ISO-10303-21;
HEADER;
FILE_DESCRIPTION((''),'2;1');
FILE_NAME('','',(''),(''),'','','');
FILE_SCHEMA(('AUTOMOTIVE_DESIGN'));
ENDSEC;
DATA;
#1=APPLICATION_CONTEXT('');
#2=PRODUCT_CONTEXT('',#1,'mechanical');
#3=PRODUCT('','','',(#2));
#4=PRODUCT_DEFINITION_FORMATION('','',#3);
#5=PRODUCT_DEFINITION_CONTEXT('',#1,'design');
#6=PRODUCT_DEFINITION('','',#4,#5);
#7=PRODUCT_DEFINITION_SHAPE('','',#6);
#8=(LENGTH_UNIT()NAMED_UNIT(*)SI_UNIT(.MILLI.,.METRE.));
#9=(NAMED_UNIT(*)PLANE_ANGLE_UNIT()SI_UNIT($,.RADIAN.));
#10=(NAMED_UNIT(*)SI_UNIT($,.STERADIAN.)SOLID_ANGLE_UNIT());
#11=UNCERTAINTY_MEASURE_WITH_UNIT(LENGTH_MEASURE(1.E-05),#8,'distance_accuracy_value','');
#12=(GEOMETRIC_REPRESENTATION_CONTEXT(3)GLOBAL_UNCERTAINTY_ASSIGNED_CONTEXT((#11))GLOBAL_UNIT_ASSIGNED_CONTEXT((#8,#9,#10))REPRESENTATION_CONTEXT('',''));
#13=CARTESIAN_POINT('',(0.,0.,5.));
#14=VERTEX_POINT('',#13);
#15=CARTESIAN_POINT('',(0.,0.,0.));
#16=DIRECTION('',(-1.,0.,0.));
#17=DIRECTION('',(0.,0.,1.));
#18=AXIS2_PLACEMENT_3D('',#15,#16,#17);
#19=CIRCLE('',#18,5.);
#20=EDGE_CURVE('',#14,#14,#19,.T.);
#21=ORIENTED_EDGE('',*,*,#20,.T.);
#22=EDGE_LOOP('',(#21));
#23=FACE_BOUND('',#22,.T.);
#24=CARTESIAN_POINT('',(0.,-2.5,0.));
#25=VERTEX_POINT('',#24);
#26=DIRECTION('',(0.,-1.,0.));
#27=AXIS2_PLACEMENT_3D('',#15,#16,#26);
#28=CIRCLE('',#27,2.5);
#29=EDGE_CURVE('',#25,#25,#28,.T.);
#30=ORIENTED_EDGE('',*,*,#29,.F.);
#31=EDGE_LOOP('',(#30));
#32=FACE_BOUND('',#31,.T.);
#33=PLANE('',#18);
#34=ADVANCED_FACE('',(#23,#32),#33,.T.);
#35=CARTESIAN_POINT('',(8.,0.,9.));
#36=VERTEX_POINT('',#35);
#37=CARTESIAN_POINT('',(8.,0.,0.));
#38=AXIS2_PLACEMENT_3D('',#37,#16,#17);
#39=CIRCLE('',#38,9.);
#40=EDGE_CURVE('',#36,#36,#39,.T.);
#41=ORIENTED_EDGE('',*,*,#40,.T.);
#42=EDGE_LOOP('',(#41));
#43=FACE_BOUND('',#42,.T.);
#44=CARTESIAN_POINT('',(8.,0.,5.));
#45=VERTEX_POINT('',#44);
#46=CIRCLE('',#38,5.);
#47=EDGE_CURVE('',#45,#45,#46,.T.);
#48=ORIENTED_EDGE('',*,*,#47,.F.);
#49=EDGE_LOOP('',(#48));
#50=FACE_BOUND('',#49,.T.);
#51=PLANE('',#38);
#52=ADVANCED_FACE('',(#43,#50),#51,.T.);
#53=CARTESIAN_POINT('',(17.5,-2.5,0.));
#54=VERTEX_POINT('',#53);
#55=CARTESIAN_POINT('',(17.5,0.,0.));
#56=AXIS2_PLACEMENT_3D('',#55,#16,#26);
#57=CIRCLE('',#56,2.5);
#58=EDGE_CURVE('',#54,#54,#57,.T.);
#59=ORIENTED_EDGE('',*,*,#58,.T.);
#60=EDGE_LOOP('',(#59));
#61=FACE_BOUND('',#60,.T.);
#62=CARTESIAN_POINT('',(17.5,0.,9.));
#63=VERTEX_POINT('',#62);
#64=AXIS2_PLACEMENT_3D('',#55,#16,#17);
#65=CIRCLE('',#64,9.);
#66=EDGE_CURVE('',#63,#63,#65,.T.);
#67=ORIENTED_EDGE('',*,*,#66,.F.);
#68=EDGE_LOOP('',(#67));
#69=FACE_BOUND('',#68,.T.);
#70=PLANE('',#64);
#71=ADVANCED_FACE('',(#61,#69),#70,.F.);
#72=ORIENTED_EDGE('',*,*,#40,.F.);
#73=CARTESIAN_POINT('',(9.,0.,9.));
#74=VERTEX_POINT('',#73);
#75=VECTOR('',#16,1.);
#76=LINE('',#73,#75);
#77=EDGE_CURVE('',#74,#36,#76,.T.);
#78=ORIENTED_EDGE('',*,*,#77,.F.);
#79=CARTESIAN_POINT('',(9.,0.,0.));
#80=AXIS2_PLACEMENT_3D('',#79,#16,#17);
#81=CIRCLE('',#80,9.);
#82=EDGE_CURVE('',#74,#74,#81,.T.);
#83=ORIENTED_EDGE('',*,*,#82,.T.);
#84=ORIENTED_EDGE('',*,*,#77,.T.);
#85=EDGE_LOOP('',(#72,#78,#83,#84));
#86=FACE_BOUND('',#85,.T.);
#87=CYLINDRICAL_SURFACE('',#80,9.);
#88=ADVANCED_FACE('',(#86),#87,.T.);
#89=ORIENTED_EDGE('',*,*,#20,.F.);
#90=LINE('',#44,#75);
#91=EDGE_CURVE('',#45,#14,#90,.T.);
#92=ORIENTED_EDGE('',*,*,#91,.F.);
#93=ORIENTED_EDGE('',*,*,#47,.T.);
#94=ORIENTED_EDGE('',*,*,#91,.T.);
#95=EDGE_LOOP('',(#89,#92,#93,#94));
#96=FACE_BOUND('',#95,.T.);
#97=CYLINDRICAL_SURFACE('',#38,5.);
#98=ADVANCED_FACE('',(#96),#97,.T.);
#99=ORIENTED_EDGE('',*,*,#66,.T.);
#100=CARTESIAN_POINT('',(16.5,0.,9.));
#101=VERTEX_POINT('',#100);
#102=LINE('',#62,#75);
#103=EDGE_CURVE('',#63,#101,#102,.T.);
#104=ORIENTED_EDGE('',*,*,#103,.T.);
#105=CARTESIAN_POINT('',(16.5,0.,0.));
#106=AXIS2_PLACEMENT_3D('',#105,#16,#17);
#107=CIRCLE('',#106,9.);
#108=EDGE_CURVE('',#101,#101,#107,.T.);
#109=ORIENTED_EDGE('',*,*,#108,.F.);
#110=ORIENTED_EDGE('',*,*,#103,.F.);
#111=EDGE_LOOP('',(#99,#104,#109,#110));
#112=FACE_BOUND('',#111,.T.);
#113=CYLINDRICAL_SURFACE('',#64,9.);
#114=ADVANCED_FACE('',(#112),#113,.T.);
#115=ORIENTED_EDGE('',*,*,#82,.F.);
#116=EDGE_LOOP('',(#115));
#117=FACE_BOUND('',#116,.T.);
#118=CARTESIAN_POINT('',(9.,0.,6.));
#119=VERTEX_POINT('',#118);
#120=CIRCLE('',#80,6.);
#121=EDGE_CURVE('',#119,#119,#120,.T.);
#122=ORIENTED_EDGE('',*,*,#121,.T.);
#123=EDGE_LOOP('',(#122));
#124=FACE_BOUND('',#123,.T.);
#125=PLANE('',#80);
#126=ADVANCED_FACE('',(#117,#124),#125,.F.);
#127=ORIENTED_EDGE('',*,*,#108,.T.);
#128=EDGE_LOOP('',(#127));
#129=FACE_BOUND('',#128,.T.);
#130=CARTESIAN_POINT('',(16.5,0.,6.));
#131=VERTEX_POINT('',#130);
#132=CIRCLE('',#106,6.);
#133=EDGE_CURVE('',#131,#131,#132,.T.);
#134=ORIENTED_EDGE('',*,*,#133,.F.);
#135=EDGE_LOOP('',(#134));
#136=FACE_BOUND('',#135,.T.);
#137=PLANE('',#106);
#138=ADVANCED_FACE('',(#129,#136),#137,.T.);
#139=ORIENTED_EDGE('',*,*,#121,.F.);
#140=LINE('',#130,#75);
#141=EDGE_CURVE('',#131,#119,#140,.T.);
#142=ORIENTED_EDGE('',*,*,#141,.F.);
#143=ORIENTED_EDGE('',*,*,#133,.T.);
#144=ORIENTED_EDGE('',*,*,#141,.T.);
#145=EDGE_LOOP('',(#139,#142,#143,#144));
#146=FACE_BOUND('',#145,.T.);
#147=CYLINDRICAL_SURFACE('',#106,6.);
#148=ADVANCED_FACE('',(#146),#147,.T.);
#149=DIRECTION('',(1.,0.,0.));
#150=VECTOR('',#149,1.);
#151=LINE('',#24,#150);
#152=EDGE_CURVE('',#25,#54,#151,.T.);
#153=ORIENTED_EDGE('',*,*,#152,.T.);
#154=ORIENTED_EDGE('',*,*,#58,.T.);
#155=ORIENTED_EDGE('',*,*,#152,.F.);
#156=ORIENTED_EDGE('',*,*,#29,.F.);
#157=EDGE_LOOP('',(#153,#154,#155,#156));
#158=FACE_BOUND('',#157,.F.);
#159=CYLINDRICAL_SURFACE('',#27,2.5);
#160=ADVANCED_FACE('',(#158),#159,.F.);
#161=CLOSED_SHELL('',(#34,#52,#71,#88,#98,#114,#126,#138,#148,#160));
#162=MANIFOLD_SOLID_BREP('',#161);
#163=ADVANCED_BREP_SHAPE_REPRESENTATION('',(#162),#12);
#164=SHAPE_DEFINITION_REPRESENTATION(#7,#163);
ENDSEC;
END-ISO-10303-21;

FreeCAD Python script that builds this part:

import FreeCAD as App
import Part
import Sketcher

doc = App.newDocument("Part")
body = doc.addObject("PartDesign::Body", "Body")

sketch1 = body.newObject("Sketcher::SketchObject", "Sketch")
sketch1.AttachmentSupport = (doc.getObject("XZ_Plane"), [""])
sketch1.MapMode = "FlatFace"
sketch1.addGeometry(Part.LineSegment(App.Vector(0, 5, 0), App.Vector(0, 0, 0)), False)
sketch1.addGeometry(Part.LineSegment(App.Vector(0, 0, 0), App.Vector(17.5, 0, 0)), False)
sketch1.addGeometry(Part.LineSegment(App.Vector(17.5, 0, 0), App.Vector(17.5, 9, 0)), False)
sketch1.addGeometry(Part.LineSegment(App.Vector(17.5, 9, 0), App.Vector(16.5, 9, 0)), False)
sketch1.addGeometry(Part.LineSegment(App.Vector(16.5, 9, 0), App.Vector(16.5, 6, 0)), False)
sketch1.addGeometry(Part.LineSegment(App.Vector(16.5, 6, 0), App.Vector(9, 6, 0)), False)
sketch1.addGeometry(Part.LineSegment(App.Vector(9, 6, 0), App.Vector(9, 9, 0)), False)
sketch1.addGeometry(Part.LineSegment(App.Vector(9, 9, 0), App.Vector(8, 9, 0)), False)
sketch1.addGeometry(Part.LineSegment(App.Vector(8, 9, 0), App.Vector(8, 5, 0)), False)
sketch1.addGeometry(Part.LineSegment(App.Vector(8, 5, 0), App.Vector(0, 5, 0)), False)
sketch1.addConstraint(Sketcher.Constraint("Coincident", 0, 2, 1, 1))
sketch1.addConstraint(Sketcher.Constraint("Coincident", 1, 2, 2, 1))
sketch1.addConstraint(Sketcher.Constraint("Coincident", 2, 2, 3, 1))
sketch1.addConstraint(Sketcher.Constraint("Coincident", 3, 2, 4, 1))
sketch1.addConstraint(Sketcher.Constraint("Coincident", 4, 2, 5, 1))
sketch1.addConstraint(Sketcher.Constraint("Coincident", 5, 2, 6, 1))
sketch1.addConstraint(Sketcher.Constraint("Coincident", 6, 2, 7, 1))
sketch1.addConstraint(Sketcher.Constraint("Coincident", 7, 2, 8, 1))
sketch1.addConstraint(Sketcher.Constraint("Coincident", 8, 2, 9, 1))
sketch1.addConstraint(Sketcher.Constraint("Coincident", 9, 2, 0, 1))
sketch1.addConstraint(Sketcher.Constraint("Vertical", 0))
sketch1.addConstraint(Sketcher.Constraint("Horizontal", 1))
sketch1.addConstraint(Sketcher.Constraint("Vertical", 2))
sketch1.addConstraint(Sketcher.Constraint("Horizontal", 3))
sketch1.addConstraint(Sketcher.Constraint("Vertical", 4))
sketch1.addConstraint(Sketcher.Constraint("Horizontal", 5))
sketch1.addConstraint(Sketcher.Constraint("Vertical", 6))
sketch1.addConstraint(Sketcher.Constraint("Horizontal", 7))
sketch1.addConstraint(Sketcher.Constraint("Vertical", 8))
sketch1.addConstraint(Sketcher.Constraint("Horizontal", 9))
sketch1.addConstraint(Sketcher.Constraint("Coincident", 0, 2, -1, 1))
sketch1.addConstraint(Sketcher.Constraint("Horizontal", 3, 2, 6, 2))
sketch1.addConstraint(Sketcher.Constraint("Equal", 3, 7))
sketch1.addConstraint(Sketcher.Constraint("DistanceX", 3, 2, 3, 1, 1.0))
sketch1.addConstraint(Sketcher.Constraint("DistanceX", 9, 2, 9, 1, 8.0))
sketch1.addConstraint(Sketcher.Constraint("DistanceY", 0, 2, 0, 1, 5.0))
sketch1.addConstraint(Sketcher.Constraint("DistanceY", 2, 1, 2, 2, 9.0))
sketch1.addConstraint(Sketcher.Constraint("DistanceY", 4, 2, 4, 1, 3.0))
sketch1.addConstraint(Sketcher.Constraint("DistanceX", 1, 1, 1, 2, 17.5))
revolution = body.newObject("PartDesign::Revolution", "Revolution")
revolution.Profile = sketch1
revolution.ReferenceAxis = (sketch1, ["H_Axis"])
revolution.Angle = 360

sketch2 = body.newObject("Sketcher::SketchObject", "Sketch001")
sketch2.AttachmentSupport = (doc.getObject("YZ_Plane"), [""])
sketch2.MapMode = "FlatFace"
sketch2.addGeometry(Part.Circle(App.Vector(0, 0, 0), App.Vector(0, 0, 1), 2.5), False)
sketch2.addConstraint(Sketcher.Constraint("Coincident", 0, 3, -1, 1))
sketch2.addConstraint(Sketcher.Constraint("Diameter", 0, 5.0))
pocket1 = body.newObject("PartDesign::Pocket", "Pocket")
pocket1.Profile = sketch2
pocket1.Type = "ThroughAll"
pocket1.Reversed = True

doc.recompute()
